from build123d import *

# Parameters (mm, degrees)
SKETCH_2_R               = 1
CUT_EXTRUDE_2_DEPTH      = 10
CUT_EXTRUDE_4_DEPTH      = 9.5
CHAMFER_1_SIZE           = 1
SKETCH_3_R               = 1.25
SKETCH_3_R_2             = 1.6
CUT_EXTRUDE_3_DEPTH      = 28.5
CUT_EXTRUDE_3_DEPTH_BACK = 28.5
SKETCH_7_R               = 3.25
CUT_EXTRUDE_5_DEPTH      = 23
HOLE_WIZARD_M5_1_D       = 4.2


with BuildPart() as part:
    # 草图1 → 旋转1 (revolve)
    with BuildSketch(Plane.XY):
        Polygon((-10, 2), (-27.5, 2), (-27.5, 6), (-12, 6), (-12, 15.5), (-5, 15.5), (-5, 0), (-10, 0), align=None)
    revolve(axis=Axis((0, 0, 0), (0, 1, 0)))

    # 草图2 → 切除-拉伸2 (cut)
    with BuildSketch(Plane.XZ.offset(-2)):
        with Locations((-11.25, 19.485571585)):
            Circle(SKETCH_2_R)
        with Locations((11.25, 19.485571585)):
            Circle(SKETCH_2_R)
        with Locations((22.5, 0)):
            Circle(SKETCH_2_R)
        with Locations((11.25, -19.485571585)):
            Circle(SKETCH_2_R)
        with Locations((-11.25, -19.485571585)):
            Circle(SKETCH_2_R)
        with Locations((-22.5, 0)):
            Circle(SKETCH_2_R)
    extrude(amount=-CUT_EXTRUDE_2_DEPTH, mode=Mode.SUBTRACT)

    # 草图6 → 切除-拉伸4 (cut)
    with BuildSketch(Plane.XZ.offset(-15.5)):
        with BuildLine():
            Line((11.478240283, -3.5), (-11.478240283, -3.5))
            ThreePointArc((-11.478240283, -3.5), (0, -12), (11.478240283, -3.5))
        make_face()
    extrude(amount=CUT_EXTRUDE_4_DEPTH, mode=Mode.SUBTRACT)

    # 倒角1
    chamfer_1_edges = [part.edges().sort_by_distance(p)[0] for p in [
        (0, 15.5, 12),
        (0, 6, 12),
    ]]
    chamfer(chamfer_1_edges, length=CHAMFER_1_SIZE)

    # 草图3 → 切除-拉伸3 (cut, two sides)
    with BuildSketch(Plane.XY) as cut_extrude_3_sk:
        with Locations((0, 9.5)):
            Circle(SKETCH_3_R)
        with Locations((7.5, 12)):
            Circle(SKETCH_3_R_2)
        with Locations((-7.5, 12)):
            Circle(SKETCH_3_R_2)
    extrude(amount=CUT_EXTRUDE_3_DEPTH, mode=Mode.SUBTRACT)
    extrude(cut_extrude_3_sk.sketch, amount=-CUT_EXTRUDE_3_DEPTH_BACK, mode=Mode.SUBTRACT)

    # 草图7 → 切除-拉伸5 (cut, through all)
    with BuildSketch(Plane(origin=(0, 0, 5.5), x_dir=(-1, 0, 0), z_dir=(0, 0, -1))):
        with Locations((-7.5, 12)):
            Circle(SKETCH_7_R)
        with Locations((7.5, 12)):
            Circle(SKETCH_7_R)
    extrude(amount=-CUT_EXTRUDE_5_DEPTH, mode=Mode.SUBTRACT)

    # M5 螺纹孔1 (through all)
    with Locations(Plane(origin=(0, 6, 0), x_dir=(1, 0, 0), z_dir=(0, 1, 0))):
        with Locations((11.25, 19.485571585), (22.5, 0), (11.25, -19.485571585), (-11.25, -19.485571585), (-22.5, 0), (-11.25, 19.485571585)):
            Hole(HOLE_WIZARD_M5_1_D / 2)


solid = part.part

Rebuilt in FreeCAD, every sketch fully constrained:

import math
import FreeCAD as App
import Part
import Sketcher

V = App.Vector


def edges_at(feature, points):
    """Names of the edges that pass closest to the given points."""
    edges = feature.Shape.Edges
    near = lambda p: min(range(len(edges)), key=lambda i: edges[i].distToShape(Part.Vertex(*p))[0])
    return sorted({f"Edge{near(p) + 1}" for p in points})

doc = App.newDocument("Part")
body = doc.addObject("PartDesign::Body", "Body")

# Sketch on XY plane
sketch1 = doc.addObject("Sketcher::SketchObject", "Sketch")
body.addObject(sketch1)
sketch1.AttachmentSupport = (doc.XY_Plane, [""])
sketch1.MapMode = "FlatFace"
sketch1.addGeometry([
    Part.LineSegment(V(-27.5, 2, 0), V(-10, 2, 0)),  # 0
    Part.LineSegment(V(-10, 2, 0), V(-10, 0, 0)),  # 1
    Part.LineSegment(V(-10, 0, 0), V(-5, 0, 0)),  # 2
    Part.LineSegment(V(-5, 0, 0), V(-5, 15.5, 0)),  # 3
    Part.LineSegment(V(-5, 15.5, 0), V(-12, 15.5, 0)),  # 4
    Part.LineSegment(V(-12, 15.5, 0), V(-12, 6, 0)),  # 5
    Part.LineSegment(V(-12, 6, 0), V(-27.5, 6, 0)),  # 6
    Part.LineSegment(V(-27.5, 6, 0), V(-27.5, 2, 0)),  # 7
], False)
sketch1.addConstraint([
    Sketcher.Constraint("Coincident", 0, 2, 1, 1),
    Sketcher.Constraint("Coincident", 1, 2, 2, 1),
    Sketcher.Constraint("Coincident", 2, 2, 3, 1),
    Sketcher.Constraint("Coincident", 3, 2, 4, 1),
    Sketcher.Constraint("Coincident", 4, 2, 5, 1),
    Sketcher.Constraint("Coincident", 5, 2, 6, 1),
    Sketcher.Constraint("Coincident", 6, 2, 7, 1),
    Sketcher.Constraint("Coincident", 7, 2, 0, 1),
    Sketcher.Constraint("Horizontal", 0),
    Sketcher.Constraint("Vertical", 1),
    Sketcher.Constraint("Horizontal", 2),
    Sketcher.Constraint("Vertical", 3),
    Sketcher.Constraint("Horizontal", 4),
    Sketcher.Constraint("Vertical", 5),
    Sketcher.Constraint("Horizontal", 6),
    Sketcher.Constraint("Vertical", 7),
    Sketcher.Constraint("PointOnObject", 1, 2, -1),
    Sketcher.Constraint("Equal", 6, 3),
    Sketcher.Constraint("DistanceX", 2, 1, 2, 2, 5.0),
    Sketcher.Constraint("DistanceX", 4, 2, 4, 1, 7.0),
    Sketcher.Constraint("DistanceY", 1, 2, 1, 1, 2.0),
    Sketcher.Constraint("DistanceY", 7, 2, 7, 1, 4.0),
    Sketcher.Constraint("DistanceX", 0, 1, 0, 2, 17.5),
    Sketcher.Constraint("DistanceX", 0, 2, -1, 1, 10.0),
])
revolution = doc.addObject("PartDesign::Revolution", "Revolution")
body.addObject(revolution)
revolution.Profile = sketch1
revolution.ReferenceAxis = (sketch1, ["V_Axis"])
revolution.Angle = 360

# Sketch on XZ plane
sketch2 = doc.addObject("Sketcher::SketchObject", "Sketch001")
body.addObject(sketch2)
sketch2.AttachmentSupport = (doc.XZ_Plane, [""])
sketch2.MapMode = "FlatFace"
sketch2.AttachmentOffset = App.Placement(V(0, 0, -2), App.Rotation())
sketch2.addGeometry([
    Part.Circle(V(-11.25, 19.485572, 0), V(0, 0, 1), 1),  # 0
    Part.Circle(V(11.25, 19.485572, 0), V(0, 0, 1), 1),  # 1
    Part.Circle(V(22.5, 0, 0), V(0, 0, 1), 1),  # 2
    Part.Circle(V(11.25, -19.485572, 0), V(0, 0, 1), 1),  # 3
    Part.Circle(V(-11.25, -19.485572, 0), V(0, 0, 1), 1),  # 4
    Part.Circle(V(-22.5, 0, 0), V(0, 0, 1), 1),  # 5
], False)
sketch2.addConstraint([
    Sketcher.Constraint("Equal", 0, 1),
    Sketcher.Constraint("Equal", 1, 2),
    Sketcher.Constraint("Equal", 2, 3),
    Sketcher.Constraint("Equal", 3, 4),
    Sketcher.Constraint("Equal", 4, 5),
    Sketcher.Constraint("Symmetric", 0, 3, 3, 3, -1, 1),
    Sketcher.Constraint("Symmetric", 1, 3, 4, 3, -1, 1),
    Sketcher.Constraint("Symmetric", 2, 3, 5, 3, -1, 1),
    Sketcher.Constraint("Symmetric", 0, 3, 1, 3, -2),
    Sketcher.Constraint("PointOnObject", 2, 3, -1),
    Sketcher.Constraint("Diameter", 0, 2.0),
    Sketcher.Constraint("DistanceX", 5, 3, 2, 3, 45.0),
    Sketcher.Constraint("DistanceX", 0, 3, 1, 3, 22.5),
    Sketcher.Constraint("DistanceY", -1, 1, 0, 3, 19.485572),
])
pocket1 = doc.addObject("PartDesign::Pocket", "Pocket")
body.addObject(pocket1)
pocket1.Profile = sketch2
pocket1.Length = 10

# Sketch on XZ plane
sketch3 = doc.addObject("Sketcher::SketchObject", "Sketch002")
body.addObject(sketch3)
sketch3.AttachmentSupport = (doc.XZ_Plane, [""])
sketch3.MapMode = "FlatFace"
sketch3.AttachmentOffset = App.Placement(V(0, 0, -15.5), App.Rotation())
sketch3.addGeometry([
    Part.LineSegment(V(11.47824, -3.5, 0), V(-11.47824, -3.5, 0)),
    Part.ArcOfCircle(Part.Circle(V(0, 0, 0), V(0, 0, 1), 12), math.radians(-163.042237), math.radians(-16.957763)),
], False)
sketch3.addConstraint([
    Sketcher.Constraint("Coincident", 0, 1, 1, 2),
    Sketcher.Constraint("Coincident", 1, 1, 0, 2),
    Sketcher.Constraint("Horizontal", 0),
    Sketcher.Constraint("Coincident", 1, 3, -1, 1),
    Sketcher.Constraint("Radius", 1, 12.0),
    Sketcher.Constraint("DistanceY", 0, 1, -1, 1, 3.5),
])
pocket2 = doc.addObject("PartDesign::Pocket", "Pocket001")
body.addObject(pocket2)
pocket2.Profile = sketch3
pocket2.Length = 9.5
pocket2.Reversed = True
doc.recompute()

chamfer = doc.addObject("PartDesign::Chamfer", "Chamfer")
body.addObject(chamfer)
chamfer.Base = (pocket2, edges_at(pocket2, [(0, 15.5, 12), (0, 6, 12)]))
chamfer.Size = 1

# Sketch on XY plane
sketch4 = doc.addObject("Sketcher::SketchObject", "Sketch003")
body.addObject(sketch4)
sketch4.AttachmentSupport = (doc.XY_Plane, [""])
sketch4.MapMode = "FlatFace"
sketch4.addGeometry([
    Part.Circle(V(0, 9.5, 0), V(0, 0, 1), 1.25),
    Part.Circle(V(7.5, 12, 0), V(0, 0, 1), 1.6),
    Part.Circle(V(-7.5, 12, 0), V(0, 0, 1), 1.6),
], False)
sketch4.addConstraint([
    Sketcher.Constraint("Equal", 1, 2),
    Sketcher.Constraint("Symmetric", 1, 3, 2, 3, -2),
    Sketcher.Constraint("PointOnObject", 0, 3, -2),
    Sketcher.Constraint("Diameter", 0, 2.5),
    Sketcher.Constraint("Diameter", 1, 3.2),
    Sketcher.Constraint("DistanceY", -1, 1, 1, 3, 12.0),
    Sketcher.Constraint("DistanceX", 2, 3, 1, 3, 15.0),
    Sketcher.Constraint("DistanceY", -1, 1, 0, 3, 9.5),
])
pocket3 = doc.addObject("PartDesign::Pocket", "Pocket002")
body.addObject(pocket3)
pocket3.Profile = sketch4
pocket3.Type = "ThroughAll"
pocket3.Midplane = True

# Sketch on XY plane
sketch5 = doc.addObject("Sketcher::SketchObject", "Sketch004")
body.addObject(sketch5)
sketch5.AttachmentSupport = (doc.XY_Plane, [""])
sketch5.MapMode = "FlatFace"
sketch5.AttachmentOffset = App.Placement(V(0, 0, 5.5), App.Rotation())
sketch5.addGeometry([
    Part.Circle(V(7.5, 12, 0), V(0, 0, 1), 3.25),
    Part.Circle(V(-7.5, 12, 0), V(0, 0, 1), 3.25),
], False)
sketch5.addConstraint([
    Sketcher.Constraint("Equal", 0, 1),
    Sketcher.Constraint("Symmetric", 0, 3, 1, 3, -2),
    Sketcher.Constraint("Diameter", 0, 6.5),
    Sketcher.Constraint("DistanceY", -1, 1, 0, 3, 12.0),
    Sketcher.Constraint("DistanceX", 1, 3, 0, 3, 15.0),
])
pocket4 = doc.addObject("PartDesign::Pocket", "Pocket003")
body.addObject(pocket4)
pocket4.Profile = sketch5
pocket4.Type = "ThroughAll"
pocket4.Reversed = True

# Sketch on XZ plane
sketch6 = doc.addObject("Sketcher::SketchObject", "Sketch005")
body.addObject(sketch6)
sketch6.AttachmentSupport = (doc.XZ_Plane, [""])
sketch6.MapMode = "FlatFace"
sketch6.AttachmentOffset = App.Placement(V(0, 0, -6), App.Rotation())
sketch6.addGeometry([
    Part.Circle(V(11.25, -19.485572, 0), V(0, 0, 1), 2.1),  # 0
    Part.Circle(V(22.5, 0, 0), V(0, 0, 1), 2.1),  # 1
    Part.Circle(V(11.25, 19.485572, 0), V(0, 0, 1), 2.1),  # 2
    Part.Circle(V(-11.25, 19.485572, 0), V(0, 0, 1), 2.1),  # 3
    Part.Circle(V(-22.5, 0, 0), V(0, 0, 1), 2.1),  # 4
    Part.Circle(V(-11.25, -19.485572, 0), V(0, 0, 1), 2.1),  # 5
], False)
sketch6.addConstraint([
    Sketcher.Constraint("Equal", 0, 1),
    Sketcher.Constraint("Equal", 1, 2),
    Sketcher.Constraint("Equal", 2, 3),
    Sketcher.Constraint("Equal", 3, 4),
    Sketcher.Constraint("Equal", 4, 5),
    Sketcher.Constraint("Symmetric", 0, 3, 3, 3, -1, 1),
    Sketcher.Constraint("Symmetric", 1, 3, 4, 3, -1, 1),
    Sketcher.Constraint("Symmetric", 2, 3, 5, 3, -1, 1),
    Sketcher.Constraint("Symmetric", 2, 3, 3, 3, -2),
    Sketcher.Constraint("PointOnObject", 1, 3, -1),
    Sketcher.Constraint("Diameter", 0, 4.2),
    Sketcher.Constraint("DistanceX", 4, 3, 1, 3, 45.0),
    Sketcher.Constraint("DistanceX", 3, 3, 2, 3, 22.5),
    Sketcher.Constraint("DistanceY", 0, 3, -1, 1, 19.485572),
])
doc.recompute()
hole = doc.addObject("PartDesign::Hole", "Hole")
body.addObject(hole)
hole.Profile = sketch6
hole.ThreadType = "None"
hole.Diameter = 4.2
hole.DepthType = "ThroughAll"
hole.Reversed = True

doc.recompute()
